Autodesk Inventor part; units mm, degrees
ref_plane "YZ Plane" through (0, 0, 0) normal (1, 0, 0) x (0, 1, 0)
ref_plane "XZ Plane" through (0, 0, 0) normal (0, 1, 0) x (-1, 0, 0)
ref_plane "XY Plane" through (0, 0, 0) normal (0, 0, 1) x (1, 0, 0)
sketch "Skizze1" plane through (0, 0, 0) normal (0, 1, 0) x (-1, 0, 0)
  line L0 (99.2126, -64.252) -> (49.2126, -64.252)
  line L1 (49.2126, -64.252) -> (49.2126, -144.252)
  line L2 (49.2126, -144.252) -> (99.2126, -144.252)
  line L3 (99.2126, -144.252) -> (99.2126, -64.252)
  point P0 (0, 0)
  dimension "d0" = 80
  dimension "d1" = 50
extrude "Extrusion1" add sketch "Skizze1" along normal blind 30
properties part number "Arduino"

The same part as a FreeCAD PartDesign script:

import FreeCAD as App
import Part
import Sketcher
from FreeCAD import Vector


def add_polygon(sketch, points):
    """Adds a closed chain of lines whose ends are joined by coincident constraints."""
    first, n = sketch.GeometryCount, len(points)
    for a, b in zip(points, points[1:] + points[:1]):
        sketch.addGeometry(Part.LineSegment(App.Vector(*a, 0), App.Vector(*b, 0)), False)
    for i in range(n):
        sketch.addConstraint(Sketcher.Constraint("Coincident", first + i, 2, first + (i + 1) % n, 1))

doc = App.newDocument("Part")
body = doc.addObject("PartDesign::Body", "Body")

# Sketch on XZ plane
sketch1 = doc.addObject("Sketcher::SketchObject", "Sketch")
body.addObject(sketch1)
sketch1.AttachmentSupport = (doc.XZ_Plane, [""])
sketch1.MapMode = "FlatFace"
add_polygon(sketch1, [(-99, -144), (-99, -64), (-49, -64), (-49, -144)])  # lines 0-3
sketch1.addConstraint([
    Sketcher.Constraint("Vertical", 0),
    Sketcher.Constraint("Horizontal", 1),
    Sketcher.Constraint("Vertical", 2),
    Sketcher.Constraint("Horizontal", 3),
    Sketcher.Constraint("DistanceX", 1, 1, 1, 2, 50.0),
    Sketcher.Constraint("DistanceY", 0, 1, 0, 2, 80.0),
    Sketcher.Constraint("DistanceY", 0, 2, -1, 1, 64.252),
    Sketcher.Constraint("DistanceX", 0, 2, -1, 1, 99.2126),
])
pad1 = doc.addObject("PartDesign::Pad", "Pad")
body.addObject(pad1)
pad1.Profile = sketch1
pad1.Length = 30
pad1.Reversed = True

doc.recompute()
